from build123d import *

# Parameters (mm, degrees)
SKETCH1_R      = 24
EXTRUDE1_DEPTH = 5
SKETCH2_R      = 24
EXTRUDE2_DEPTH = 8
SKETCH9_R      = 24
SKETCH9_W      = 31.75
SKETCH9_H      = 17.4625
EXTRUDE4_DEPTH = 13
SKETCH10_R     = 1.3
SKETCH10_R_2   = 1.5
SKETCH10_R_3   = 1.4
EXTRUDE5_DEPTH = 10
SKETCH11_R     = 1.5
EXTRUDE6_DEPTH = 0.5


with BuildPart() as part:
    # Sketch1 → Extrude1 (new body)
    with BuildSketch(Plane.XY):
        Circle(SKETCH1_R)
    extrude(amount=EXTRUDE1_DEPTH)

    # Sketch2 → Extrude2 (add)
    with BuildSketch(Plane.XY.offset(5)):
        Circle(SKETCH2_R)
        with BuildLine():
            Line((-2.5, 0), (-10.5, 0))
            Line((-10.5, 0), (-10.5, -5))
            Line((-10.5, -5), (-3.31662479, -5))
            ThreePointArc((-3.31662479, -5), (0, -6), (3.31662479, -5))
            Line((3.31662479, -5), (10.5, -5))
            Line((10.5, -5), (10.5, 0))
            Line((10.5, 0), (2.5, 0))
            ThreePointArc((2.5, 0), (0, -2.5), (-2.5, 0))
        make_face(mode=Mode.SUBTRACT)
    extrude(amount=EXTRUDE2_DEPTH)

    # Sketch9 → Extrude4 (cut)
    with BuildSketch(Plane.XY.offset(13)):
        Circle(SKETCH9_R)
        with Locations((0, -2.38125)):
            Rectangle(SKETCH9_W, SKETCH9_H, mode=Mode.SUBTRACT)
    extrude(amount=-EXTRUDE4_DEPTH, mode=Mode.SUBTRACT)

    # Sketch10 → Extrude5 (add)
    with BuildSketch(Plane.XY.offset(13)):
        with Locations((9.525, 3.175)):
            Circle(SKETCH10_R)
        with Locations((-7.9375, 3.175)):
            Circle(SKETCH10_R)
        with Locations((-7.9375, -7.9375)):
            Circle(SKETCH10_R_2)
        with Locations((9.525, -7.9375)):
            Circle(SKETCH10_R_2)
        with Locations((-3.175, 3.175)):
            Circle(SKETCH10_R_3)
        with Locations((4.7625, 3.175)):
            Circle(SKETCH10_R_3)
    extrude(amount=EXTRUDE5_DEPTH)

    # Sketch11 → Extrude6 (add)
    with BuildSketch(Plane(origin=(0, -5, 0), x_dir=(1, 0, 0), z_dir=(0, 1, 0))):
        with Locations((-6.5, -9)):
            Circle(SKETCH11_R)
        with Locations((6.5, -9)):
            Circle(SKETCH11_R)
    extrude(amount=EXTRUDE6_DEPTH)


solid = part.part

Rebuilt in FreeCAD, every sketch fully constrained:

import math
import FreeCAD as App
import Part
import Sketcher
from FreeCAD import Vector
Q = App.Units.Quantity

doc = App.newDocument("Part")
body = doc.addObject("PartDesign::Body", "Body")

# Sketch on XY plane
sketch1 = doc.addObject("Sketcher::SketchObject", "Sketch")
body.addObject(sketch1)
sketch1.AttachmentSupport = (doc.XY_Plane, [""])
sketch1.MapMode = "FlatFace"
sketch1.addGeometry(Part.Circle(Vector(0, 0, 0), Vector(0, 0, 1), 24), False)
sketch1.addConstraint(Sketcher.Constraint("Coincident", 0, 3, -1, 1))
sketch1.addConstraint(Sketcher.Constraint("Diameter", 0, Q("48 mm")))
pad1 = doc.addObject("PartDesign::Pad", "Pad")
body.addObject(pad1)
pad1.Profile = sketch1
pad1.Length = 5

# Sketch on XY plane
sketch2 = doc.addObject("Sketcher::SketchObject", "Sketch001")
body.addObject(sketch2)
sketch2.AttachmentSupport = (doc.XY_Plane, [""])
sketch2.MapMode = "FlatFace"
sketch2.AttachmentOffset = App.Placement(Vector(0, 0, 5), App.Rotation())
sketch2.addGeometry(Part.Circle(Vector(0, 0, 0), Vector(0, 0, 1), 24), False)
sketch2.addGeometry(Part.LineSegment(Vector(-10.5, 0, 0), Vector(-2.5, 0, 0)), False)
sketch2.addGeometry(Part.ArcOfCircle(Part.Circle(Vector(0, 0, 0), Vector(0, 0, 1), 2.5), math.radians(180), math.radians(360)), False)
sketch2.addGeometry(Part.LineSegment(Vector(2.5, 0, 0), Vector(10.5, 0, 0)), False)
sketch2.addGeometry(Part.LineSegment(Vector(10.5, 0, 0), Vector(10.5, -5, 0)), False)
sketch2.addGeometry(Part.LineSegment(Vector(10.5, -5, 0), Vector(3.3, -5, 0)), False)
sketch2.addGeometry(Part.ArcOfCircle(Part.Circle(Vector(0, 0, 0), Vector(0, 0, 1), 6), math.radians(-124), math.radians(-56)), False)
sketch2.addGeometry(Part.LineSegment(Vector(-3.3, -5, 0), Vector(-10.5, -5, 0)), False)
sketch2.addGeometry(Part.LineSegment(Vector(-10.5, -5, 0), Vector(-10.5, 0, 0)), False)
sketch2.addConstraint(Sketcher.Constraint("Coincident", 1, 2, 2, 1))
sketch2.addConstraint(Sketcher.Constraint("Coincident", 2, 2, 3, 1))
sketch2.addConstraint(Sketcher.Constraint("Coincident", 3, 2, 4, 1))
sketch2.addConstraint(Sketcher.Constraint("Coincident", 4, 2, 5, 1))
sketch2.addConstraint(Sketcher.Constraint("Coincident", 5, 2, 6, 2))
sketch2.addConstraint(Sketcher.Constraint("Coincident", 6, 1, 7, 1))
sketch2.addConstraint(Sketcher.Constraint("Coincident", 7, 2, 8, 1))
sketch2.addConstraint(Sketcher.Constraint("Coincident", 8, 2, 1, 1))
sketch2.addConstraint(Sketcher.Constraint("Horizontal", 1))
sketch2.addConstraint(Sketcher.Constraint("Horizontal", 3))
sketch2.addConstraint(Sketcher.Constraint("Vertical", 4))
sketch2.addConstraint(Sketcher.Constraint("Horizontal", 5))
sketch2.addConstraint(Sketcher.Constraint("Horizontal", 7))
sketch2.addConstraint(Sketcher.Constraint("Vertical", 8))
sketch2.addConstraint(Sketcher.Constraint("Coincident", 0, 3, -1, 1))
sketch2.addConstraint(Sketcher.Constraint("Coincident", 2, 3, -1, 1))
sketch2.addConstraint(Sketcher.Constraint("Coincident", 6, 3, -1, 1))
sketch2.addConstraint(Sketcher.Constraint("Symmetric", 3, 2, 8, 2, -1, 1))
sketch2.addConstraint(Sketcher.Constraint("PointOnObject", 1, 2, -1))
sketch2.addConstraint(Sketcher.Constraint("Horizontal", 5, 2, 6, 1))
sketch2.addConstraint(Sketcher.Constraint("Diameter", 0, Q("48 mm")))
sketch2.addConstraint(Sketcher.Constraint("Radius", 6, Q("6 mm")))
sketch2.addConstraint(Sketcher.Constraint("Radius", 2, Q("2.5 mm")))
sketch2.addConstraint(Sketcher.Constraint("DistanceX", 1, 1, 1, 2, Q("8 mm")))
sketch2.addConstraint(Sketcher.Constraint("DistanceY", 4, 2, 4, 1, Q("5 mm")))
pad2 = doc.addObject("PartDesign::Pad", "Pad001")
body.addObject(pad2)
pad2.Profile = sketch2
pad2.Length = 8

# Sketch on XY plane
sketch3 = doc.addObject("Sketcher::SketchObject", "Sketch002")
body.addObject(sketch3)
sketch3.AttachmentSupport = (doc.XY_Plane, [""])
sketch3.MapMode = "FlatFace"
sketch3.AttachmentOffset = App.Placement(Vector(0, 0, 13), App.Rotation())
sketch3.addGeometry(Part.Circle(Vector(0, 0, 0), Vector(0, 0, 1), 24), False)
sketch3.addGeometry(Part.LineSegment(Vector(16, -11, 0), Vector(-16, -11, 0)), False)
sketch3.addGeometry(Part.LineSegment(Vector(-16, -11, 0), Vector(-16, 6, 0)), False)
sketch3.addGeometry(Part.LineSegment(Vector(-16, 6, 0), Vector(16, 6, 0)), False)
sketch3.addGeometry(Part.LineSegment(Vector(16, 6, 0), Vector(16, -11, 0)), False)
sketch3.addConstraint(Sketcher.Constraint("Coincident", 1, 2, 2, 1))
sketch3.addConstraint(Sketcher.Constraint("Coincident", 2, 2, 3, 1))
sketch3.addConstraint(Sketcher.Constraint("Coincident", 3, 2, 4, 1))
sketch3.addConstraint(Sketcher.Constraint("Coincident", 4, 2, 1, 1))
sketch3.addConstraint(Sketcher.Constraint("Horizontal", 1))
sketch3.addConstraint(Sketcher.Constraint("Vertical", 2))
sketch3.addConstraint(Sketcher.Constraint("Horizontal", 3))
sketch3.addConstraint(Sketcher.Constraint("Vertical", 4))
sketch3.addConstraint(Sketcher.Constraint("Coincident", 0, 3, -1, 1))
sketch3.addConstraint(Sketcher.Constraint("Diameter", 0, Q("48 mm")))
sketch3.addConstraint(Sketcher.Constraint("DistanceX", 1, 2, 1, 1, Q("31.75 mm")))
sketch3.addConstraint(Sketcher.Constraint("DistanceY", -1, 1, 2, 2, Q("6.35 mm")))
sketch3.addConstraint(Sketcher.Constraint("DistanceY", 2, 1, 2, 2, Q("17.4625 mm")))
sketch3.addConstraint(Sketcher.Constraint("DistanceX", 1, 2, -1, 1, Q("15.875 mm")))
pocket1 = doc.addObject("PartDesign::Pocket", "Pocket")
body.addObject(pocket1)
pocket1.Profile = sketch3
pocket1.Length = 13

# Sketch on XY plane
sketch4 = doc.addObject("Sketcher::SketchObject", "Sketch003")
body.addObject(sketch4)
sketch4.AttachmentSupport = (doc.XY_Plane, [""])
sketch4.MapMode = "FlatFace"
sketch4.AttachmentOffset = App.Placement(Vector(0, 0, 13), App.Rotation())
sketch4.addGeometry(Part.Circle(Vector(9.5, 3.2, 0), Vector(0, 0, 1), 1.3), False)
sketch4.addGeometry(Part.Circle(Vector(-7.9, 3.2, 0), Vector(0, 0, 1), 1.3), False)
sketch4.addGeometry(Part.Circle(Vector(-7.9, -7.9, 0), Vector(0, 0, 1), 1.5), False)
sketch4.addGeometry(Part.Circle(Vector(9.5, -7.9, 0), Vector(0, 0, 1), 1.5), False)
sketch4.addGeometry(Part.Circle(Vector(-3.2, 3.2, 0), Vector(0, 0, 1), 1.4), False)
sketch4.addGeometry(Part.Circle(Vector(4.8, 3.2, 0), Vector(0, 0, 1), 1.4), False)
sketch4.addConstraint(Sketcher.Constraint("Equal", 0, 1))
sketch4.addConstraint(Sketcher.Constraint("Equal", 2, 3))
sketch4.addConstraint(Sketcher.Constraint("Equal", 4, 5))
sketch4.addConstraint(Sketcher.Constraint("Horizontal", 0, 3, 1, 3))
sketch4.addConstraint(Sketcher.Constraint("Horizontal", 2, 3, 3, 3))
sketch4.addConstraint(Sketcher.Constraint("Horizontal", 1, 3, 4, 3))
sketch4.addConstraint(Sketcher.Constraint("Horizontal", 4, 3, 5, 3))
sketch4.addConstraint(Sketcher.Constraint("Vertical", 1, 3, 2, 3))
sketch4.addConstraint(Sketcher.Constraint("Vertical", 0, 3, 3, 3))
sketch4.addConstraint(Sketcher.Constraint("Diameter", 2, Q("3 mm")))
sketch4.addConstraint(Sketcher.Constraint("Diameter", 0, Q("2.6 mm")))
sketch4.addConstraint(Sketcher.Constraint("Diameter", 4, Q("2.8 mm")))
sketch4.addConstraint(Sketcher.Constraint("DistanceX", 4, 3, 0, 3, Q("12.7 mm")))
sketch4.addConstraint(Sketcher.Constraint("DistanceX", 1, 3, 5, 3, Q("12.7 mm")))
sketch4.addConstraint(Sketcher.Constraint("DistanceX", -1, 1, 0, 3, Q("9.525 mm")))
sketch4.addConstraint(Sketcher.Constraint("DistanceY", -1, 1, 0, 3, Q("3.175 mm")))
sketch4.addConstraint(Sketcher.Constraint("DistanceX", 1, 3, -1, 1, Q("7.9375 mm")))
sketch4.addConstraint(Sketcher.Constraint("DistanceY", 2, 3, -1, 1, Q("7.9375 mm")))
pad3 = doc.addObject("PartDesign::Pad", "Pad002")
body.addObject(pad3)
pad3.Profile = sketch4
pad3.Length = 10

# Sketch on XZ plane
sketch5 = doc.addObject("Sketcher::SketchObject", "Sketch004")
body.addObject(sketch5)
sketch5.AttachmentSupport = (doc.XZ_Plane, [""])
sketch5.MapMode = "FlatFace"
sketch5.AttachmentOffset = App.Placement(Vector(0, 0, 5), App.Rotation())
sketch5.addGeometry(Part.Circle(Vector(-6.5, 9, 0), Vector(0, 0, 1), 1.5), False)
sketch5.addGeometry(Part.Circle(Vector(6.5, 9, 0), Vector(0, 0, 1), 1.5), False)
sketch5.addConstraint(Sketcher.Constraint("Equal", 0, 1))
sketch5.addConstraint(Sketcher.Constraint("Symmetric", 0, 3, 1, 3, -2))
sketch5.addConstraint(Sketcher.Constraint("Diameter", 0, Q("3 mm")))
sketch5.addConstraint(Sketcher.Constraint("DistanceY", -1, 1, 0, 3, Q("9 mm")))
sketch5.addConstraint(Sketcher.Constraint("DistanceX", 0, 3, 1, 3, Q("13 mm")))
pad4 = doc.addObject("PartDesign::Pad", "Pad003")
body.addObject(pad4)
pad4.Profile = sketch5
pad4.Length = 0.5
pad4.Reversed = True

doc.recompute()
